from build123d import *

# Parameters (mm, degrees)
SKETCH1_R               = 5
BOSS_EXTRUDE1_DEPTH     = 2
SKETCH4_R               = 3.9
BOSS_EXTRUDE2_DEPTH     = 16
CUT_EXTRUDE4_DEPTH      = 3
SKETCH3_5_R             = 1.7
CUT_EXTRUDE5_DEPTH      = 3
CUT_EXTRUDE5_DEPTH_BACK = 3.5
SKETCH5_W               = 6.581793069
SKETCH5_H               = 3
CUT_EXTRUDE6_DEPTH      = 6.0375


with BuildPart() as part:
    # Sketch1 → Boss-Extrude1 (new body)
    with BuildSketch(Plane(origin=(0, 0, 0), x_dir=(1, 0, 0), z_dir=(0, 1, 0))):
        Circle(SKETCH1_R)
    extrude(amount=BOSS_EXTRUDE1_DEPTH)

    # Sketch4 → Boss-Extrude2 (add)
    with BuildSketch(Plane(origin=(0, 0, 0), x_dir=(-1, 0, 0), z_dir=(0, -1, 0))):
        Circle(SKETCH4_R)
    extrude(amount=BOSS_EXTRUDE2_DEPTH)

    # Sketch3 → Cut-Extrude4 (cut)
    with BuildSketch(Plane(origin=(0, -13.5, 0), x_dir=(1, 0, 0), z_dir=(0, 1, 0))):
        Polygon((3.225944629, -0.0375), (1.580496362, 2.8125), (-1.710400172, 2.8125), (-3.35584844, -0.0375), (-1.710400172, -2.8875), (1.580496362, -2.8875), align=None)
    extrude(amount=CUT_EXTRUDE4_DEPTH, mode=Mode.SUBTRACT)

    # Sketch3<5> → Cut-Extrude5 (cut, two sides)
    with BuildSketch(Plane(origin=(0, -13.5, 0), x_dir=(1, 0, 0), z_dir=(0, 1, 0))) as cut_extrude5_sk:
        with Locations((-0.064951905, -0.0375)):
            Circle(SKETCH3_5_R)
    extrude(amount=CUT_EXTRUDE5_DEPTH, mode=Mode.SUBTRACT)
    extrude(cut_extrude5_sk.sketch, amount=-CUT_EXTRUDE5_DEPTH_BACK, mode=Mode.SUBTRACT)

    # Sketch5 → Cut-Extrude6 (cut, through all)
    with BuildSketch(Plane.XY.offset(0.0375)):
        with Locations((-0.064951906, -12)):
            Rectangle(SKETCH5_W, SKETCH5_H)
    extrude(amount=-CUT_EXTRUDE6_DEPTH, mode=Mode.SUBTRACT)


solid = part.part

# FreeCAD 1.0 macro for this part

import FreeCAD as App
import Part
import Sketcher
Q = App.Units.Quantity

doc = App.newDocument("Part")
body = doc.addObject("PartDesign::Body", "Body")

# Sketch on XZ plane
sketch1 = doc.addObject("Sketcher::SketchObject", "Sketch")
body.addObject(sketch1)
sketch1.AttachmentSupport = (doc.XZ_Plane, [""])
sketch1.MapMode = "FlatFace"
sketch1.addGeometry(Part.Circle(App.Vector(0, 0, 0), App.Vector(0, 0, 1), 5), False)
sketch1.addConstraint(Sketcher.Constraint("Coincident", 0, 3, -1, 1))
sketch1.addConstraint(Sketcher.Constraint("Diameter", 0, Q("10 mm")))
pad1 = doc.addObject("PartDesign::Pad", "Pad")
body.addObject(pad1)
pad1.Profile = sketch1
pad1.Length = 2
pad1.Reversed = True

# Sketch on XZ plane
sketch2 = doc.addObject("Sketcher::SketchObject", "Sketch001")
body.addObject(sketch2)
sketch2.AttachmentSupport = (doc.XZ_Plane, [""])
sketch2.MapMode = "FlatFace"
sketch2.addGeometry(Part.Circle(App.Vector(0, 0, 0), App.Vector(0, 0, 1), 3.9), False)
sketch2.addConstraint(Sketcher.Constraint("Coincident", 0, 3, -1, 1))
sketch2.addConstraint(Sketcher.Constraint("Diameter", 0, Q("7.8 mm")))
pad2 = doc.addObject("PartDesign::Pad", "Pad001")
body.addObject(pad2)
pad2.Profile = sketch2
pad2.Length = 16

# Sketch on XZ plane
sketch3 = doc.addObject("Sketcher::SketchObject", "Sketch002")
body.addObject(sketch3)
sketch3.AttachmentSupport = (doc.XZ_Plane, [""])
sketch3.MapMode = "FlatFace"
sketch3.AttachmentOffset = App.Placement(App.Vector(0, 0, 13.5), App.Rotation())
sketch3.addGeometry(Part.LineSegment(App.Vector(3.225945, 0.0375, 0), App.Vector(1.580496, -2.8125, 0)), False)
sketch3.addGeometry(Part.LineSegment(App.Vector(1.580496, -2.8125, 0), App.Vector(-1.7104, -2.8125, 0)), False)
sketch3.addGeometry(Part.LineSegment(App.Vector(-1.7104, -2.8125, 0), App.Vector(-3.355848, 0.0375, 0)), False)
sketch3.addGeometry(Part.LineSegment(App.Vector(-3.355848, 0.0375, 0), App.Vector(-1.7104, 2.8875, 0)), False)
sketch3.addGeometry(Part.LineSegment(App.Vector(-1.7104, 2.8875, 0), App.Vector(1.580496, 2.8875, 0)), False)
sketch3.addGeometry(Part.LineSegment(App.Vector(1.580496, 2.8875, 0), App.Vector(3.225945, 0.0375, 0)), False)
sketch3.addConstraint(Sketcher.Constraint("Coincident", 0, 2, 1, 1))
sketch3.addConstraint(Sketcher.Constraint("Coincident", 1, 2, 2, 1))
sketch3.addConstraint(Sketcher.Constraint("Coincident", 2, 2, 3, 1))
sketch3.addConstraint(Sketcher.Constraint("Coincident", 3, 2, 4, 1))
sketch3.addConstraint(Sketcher.Constraint("Coincident", 4, 2, 5, 1))
sketch3.addConstraint(Sketcher.Constraint("Coincident", 5, 2, 0, 1))
sketch3.addConstraint(Sketcher.Constraint("Horizontal", 1))
sketch3.addConstraint(Sketcher.Constraint("Horizontal", 4))
sketch3.addConstraint(Sketcher.Constraint("Parallel", 0, 3))
sketch3.addConstraint(Sketcher.Constraint("Parallel", 2, 5))
sketch3.addConstraint(Sketcher.Constraint("Horizontal", 2, 2, 5, 2))
sketch3.addConstraint(Sketcher.Constraint("Vertical", 1, 2, 3, 2))
sketch3.addConstraint(Sketcher.Constraint("Vertical", 0, 2, 4, 2))
sketch3.addConstraint(Sketcher.Constraint("Angle", 0, Q("-120 deg")))
sketch3.addConstraint(Sketcher.Constraint("DistanceY", 1, 2, 3, 2, Q("5.7 mm")))
sketch3.addConstraint(Sketcher.Constraint("DistanceY", 0, 2, -1, 1, Q("2.8125 mm")))
sketch3.addConstraint(Sketcher.Constraint("DistanceX", 1, 2, -1, 1, Q("1.7104 mm")))
sketch3.addConstraint(Sketcher.Constraint("DistanceX", 1, 2, 1, 1, Q("3.290897 mm")))
pocket1 = doc.addObject("PartDesign::Pocket", "Pocket")
body.addObject(pocket1)
pocket1.Profile = sketch3
pocket1.Length = 3

# Sketch on XZ plane
sketch4 = doc.addObject("Sketcher::SketchObject", "Sketch003")
body.addObject(sketch4)
sketch4.AttachmentSupport = (doc.XZ_Plane, [""])
sketch4.MapMode = "FlatFace"
sketch4.AttachmentOffset = App.Placement(App.Vector(0, 0, 13.5), App.Rotation())
sketch4.addGeometry(Part.Circle(App.Vector(-0.064952, 0.0375, 0), App.Vector(0, 0, 1), 1.7), False)
sketch4.addConstraint(Sketcher.Constraint("Diameter", 0, Q("3.4 mm")))
sketch4.addConstraint(Sketcher.Constraint("DistanceY", -1, 1, 0, 3, Q("0.0375 mm")))
sketch4.addConstraint(Sketcher.Constraint("DistanceX", 0, 3, -1, 1, Q("0.064952 mm")))
pocket2 = doc.addObject("PartDesign::Pocket", "Pocket001")
body.addObject(pocket2)
pocket2.Profile = sketch4
pocket2.Type = "TwoLengths"
pocket2.Length = 3
pocket2.Length2 = 3.5

# Sketch on XY plane
sketch5 = doc.addObject("Sketcher::SketchObject", "Sketch004")
body.addObject(sketch5)
sketch5.AttachmentSupport = (doc.XY_Plane, [""])
sketch5.MapMode = "FlatFace"
sketch5.AttachmentOffset = App.Placement(App.Vector(0, 0, 0.0375), App.Rotation())
sketch5.addGeometry(Part.LineSegment(App.Vector(-3.355848, -10.5, 0), App.Vector(-3.355848, -13.5, 0)), False)
sketch5.addGeometry(Part.LineSegment(App.Vector(-3.355848, -13.5, 0), App.Vector(3.225945, -13.5, 0)), False)
sketch5.addGeometry(Part.LineSegment(App.Vector(3.225945, -13.5, 0), App.Vector(3.225945, -10.5, 0)), False)
sketch5.addGeometry(Part.LineSegment(App.Vector(3.225945, -10.5, 0), App.Vector(-3.355848, -10.5, 0)), False)
sketch5.addConstraint(Sketcher.Constraint("Coincident", 0, 2, 1, 1))
sketch5.addConstraint(Sketcher.Constraint("Coincident", 1, 2, 2, 1))
sketch5.addConstraint(Sketcher.Constraint("Coincident", 2, 2, 3, 1))
sketch5.addConstraint(Sketcher.Constraint("Coincident", 3, 2, 0, 1))
sketch5.addConstraint(Sketcher.Constraint("Vertical", 0))
sketch5.addConstraint(Sketcher.Constraint("Horizontal", 1))
sketch5.addConstraint(Sketcher.Constraint("Vertical", 2))
sketch5.addConstraint(Sketcher.Constraint("Horizontal", 3))
sketch5.addConstraint(Sketcher.Constraint("DistanceY", 0, 2, 0, 1, Q("3 mm")))
sketch5.addConstraint(Sketcher.Constraint("DistanceY", 0, 2, -1, 1, Q("13.5 mm")))
sketch5.addConstraint(Sketcher.Constraint("DistanceX", 1, 1, 1, 2, Q("6.581793 mm")))
sketch5.addConstraint(Sketcher.Constraint("DistanceX", 0, 2, -1, 1, Q("3.355848 mm")))
pocket3 = doc.addObject("PartDesign::Pocket", "Pocket002")
body.addObject(pocket3)
pocket3.Profile = sketch5
pocket3.Type = "ThroughAll"

doc.recompute()
